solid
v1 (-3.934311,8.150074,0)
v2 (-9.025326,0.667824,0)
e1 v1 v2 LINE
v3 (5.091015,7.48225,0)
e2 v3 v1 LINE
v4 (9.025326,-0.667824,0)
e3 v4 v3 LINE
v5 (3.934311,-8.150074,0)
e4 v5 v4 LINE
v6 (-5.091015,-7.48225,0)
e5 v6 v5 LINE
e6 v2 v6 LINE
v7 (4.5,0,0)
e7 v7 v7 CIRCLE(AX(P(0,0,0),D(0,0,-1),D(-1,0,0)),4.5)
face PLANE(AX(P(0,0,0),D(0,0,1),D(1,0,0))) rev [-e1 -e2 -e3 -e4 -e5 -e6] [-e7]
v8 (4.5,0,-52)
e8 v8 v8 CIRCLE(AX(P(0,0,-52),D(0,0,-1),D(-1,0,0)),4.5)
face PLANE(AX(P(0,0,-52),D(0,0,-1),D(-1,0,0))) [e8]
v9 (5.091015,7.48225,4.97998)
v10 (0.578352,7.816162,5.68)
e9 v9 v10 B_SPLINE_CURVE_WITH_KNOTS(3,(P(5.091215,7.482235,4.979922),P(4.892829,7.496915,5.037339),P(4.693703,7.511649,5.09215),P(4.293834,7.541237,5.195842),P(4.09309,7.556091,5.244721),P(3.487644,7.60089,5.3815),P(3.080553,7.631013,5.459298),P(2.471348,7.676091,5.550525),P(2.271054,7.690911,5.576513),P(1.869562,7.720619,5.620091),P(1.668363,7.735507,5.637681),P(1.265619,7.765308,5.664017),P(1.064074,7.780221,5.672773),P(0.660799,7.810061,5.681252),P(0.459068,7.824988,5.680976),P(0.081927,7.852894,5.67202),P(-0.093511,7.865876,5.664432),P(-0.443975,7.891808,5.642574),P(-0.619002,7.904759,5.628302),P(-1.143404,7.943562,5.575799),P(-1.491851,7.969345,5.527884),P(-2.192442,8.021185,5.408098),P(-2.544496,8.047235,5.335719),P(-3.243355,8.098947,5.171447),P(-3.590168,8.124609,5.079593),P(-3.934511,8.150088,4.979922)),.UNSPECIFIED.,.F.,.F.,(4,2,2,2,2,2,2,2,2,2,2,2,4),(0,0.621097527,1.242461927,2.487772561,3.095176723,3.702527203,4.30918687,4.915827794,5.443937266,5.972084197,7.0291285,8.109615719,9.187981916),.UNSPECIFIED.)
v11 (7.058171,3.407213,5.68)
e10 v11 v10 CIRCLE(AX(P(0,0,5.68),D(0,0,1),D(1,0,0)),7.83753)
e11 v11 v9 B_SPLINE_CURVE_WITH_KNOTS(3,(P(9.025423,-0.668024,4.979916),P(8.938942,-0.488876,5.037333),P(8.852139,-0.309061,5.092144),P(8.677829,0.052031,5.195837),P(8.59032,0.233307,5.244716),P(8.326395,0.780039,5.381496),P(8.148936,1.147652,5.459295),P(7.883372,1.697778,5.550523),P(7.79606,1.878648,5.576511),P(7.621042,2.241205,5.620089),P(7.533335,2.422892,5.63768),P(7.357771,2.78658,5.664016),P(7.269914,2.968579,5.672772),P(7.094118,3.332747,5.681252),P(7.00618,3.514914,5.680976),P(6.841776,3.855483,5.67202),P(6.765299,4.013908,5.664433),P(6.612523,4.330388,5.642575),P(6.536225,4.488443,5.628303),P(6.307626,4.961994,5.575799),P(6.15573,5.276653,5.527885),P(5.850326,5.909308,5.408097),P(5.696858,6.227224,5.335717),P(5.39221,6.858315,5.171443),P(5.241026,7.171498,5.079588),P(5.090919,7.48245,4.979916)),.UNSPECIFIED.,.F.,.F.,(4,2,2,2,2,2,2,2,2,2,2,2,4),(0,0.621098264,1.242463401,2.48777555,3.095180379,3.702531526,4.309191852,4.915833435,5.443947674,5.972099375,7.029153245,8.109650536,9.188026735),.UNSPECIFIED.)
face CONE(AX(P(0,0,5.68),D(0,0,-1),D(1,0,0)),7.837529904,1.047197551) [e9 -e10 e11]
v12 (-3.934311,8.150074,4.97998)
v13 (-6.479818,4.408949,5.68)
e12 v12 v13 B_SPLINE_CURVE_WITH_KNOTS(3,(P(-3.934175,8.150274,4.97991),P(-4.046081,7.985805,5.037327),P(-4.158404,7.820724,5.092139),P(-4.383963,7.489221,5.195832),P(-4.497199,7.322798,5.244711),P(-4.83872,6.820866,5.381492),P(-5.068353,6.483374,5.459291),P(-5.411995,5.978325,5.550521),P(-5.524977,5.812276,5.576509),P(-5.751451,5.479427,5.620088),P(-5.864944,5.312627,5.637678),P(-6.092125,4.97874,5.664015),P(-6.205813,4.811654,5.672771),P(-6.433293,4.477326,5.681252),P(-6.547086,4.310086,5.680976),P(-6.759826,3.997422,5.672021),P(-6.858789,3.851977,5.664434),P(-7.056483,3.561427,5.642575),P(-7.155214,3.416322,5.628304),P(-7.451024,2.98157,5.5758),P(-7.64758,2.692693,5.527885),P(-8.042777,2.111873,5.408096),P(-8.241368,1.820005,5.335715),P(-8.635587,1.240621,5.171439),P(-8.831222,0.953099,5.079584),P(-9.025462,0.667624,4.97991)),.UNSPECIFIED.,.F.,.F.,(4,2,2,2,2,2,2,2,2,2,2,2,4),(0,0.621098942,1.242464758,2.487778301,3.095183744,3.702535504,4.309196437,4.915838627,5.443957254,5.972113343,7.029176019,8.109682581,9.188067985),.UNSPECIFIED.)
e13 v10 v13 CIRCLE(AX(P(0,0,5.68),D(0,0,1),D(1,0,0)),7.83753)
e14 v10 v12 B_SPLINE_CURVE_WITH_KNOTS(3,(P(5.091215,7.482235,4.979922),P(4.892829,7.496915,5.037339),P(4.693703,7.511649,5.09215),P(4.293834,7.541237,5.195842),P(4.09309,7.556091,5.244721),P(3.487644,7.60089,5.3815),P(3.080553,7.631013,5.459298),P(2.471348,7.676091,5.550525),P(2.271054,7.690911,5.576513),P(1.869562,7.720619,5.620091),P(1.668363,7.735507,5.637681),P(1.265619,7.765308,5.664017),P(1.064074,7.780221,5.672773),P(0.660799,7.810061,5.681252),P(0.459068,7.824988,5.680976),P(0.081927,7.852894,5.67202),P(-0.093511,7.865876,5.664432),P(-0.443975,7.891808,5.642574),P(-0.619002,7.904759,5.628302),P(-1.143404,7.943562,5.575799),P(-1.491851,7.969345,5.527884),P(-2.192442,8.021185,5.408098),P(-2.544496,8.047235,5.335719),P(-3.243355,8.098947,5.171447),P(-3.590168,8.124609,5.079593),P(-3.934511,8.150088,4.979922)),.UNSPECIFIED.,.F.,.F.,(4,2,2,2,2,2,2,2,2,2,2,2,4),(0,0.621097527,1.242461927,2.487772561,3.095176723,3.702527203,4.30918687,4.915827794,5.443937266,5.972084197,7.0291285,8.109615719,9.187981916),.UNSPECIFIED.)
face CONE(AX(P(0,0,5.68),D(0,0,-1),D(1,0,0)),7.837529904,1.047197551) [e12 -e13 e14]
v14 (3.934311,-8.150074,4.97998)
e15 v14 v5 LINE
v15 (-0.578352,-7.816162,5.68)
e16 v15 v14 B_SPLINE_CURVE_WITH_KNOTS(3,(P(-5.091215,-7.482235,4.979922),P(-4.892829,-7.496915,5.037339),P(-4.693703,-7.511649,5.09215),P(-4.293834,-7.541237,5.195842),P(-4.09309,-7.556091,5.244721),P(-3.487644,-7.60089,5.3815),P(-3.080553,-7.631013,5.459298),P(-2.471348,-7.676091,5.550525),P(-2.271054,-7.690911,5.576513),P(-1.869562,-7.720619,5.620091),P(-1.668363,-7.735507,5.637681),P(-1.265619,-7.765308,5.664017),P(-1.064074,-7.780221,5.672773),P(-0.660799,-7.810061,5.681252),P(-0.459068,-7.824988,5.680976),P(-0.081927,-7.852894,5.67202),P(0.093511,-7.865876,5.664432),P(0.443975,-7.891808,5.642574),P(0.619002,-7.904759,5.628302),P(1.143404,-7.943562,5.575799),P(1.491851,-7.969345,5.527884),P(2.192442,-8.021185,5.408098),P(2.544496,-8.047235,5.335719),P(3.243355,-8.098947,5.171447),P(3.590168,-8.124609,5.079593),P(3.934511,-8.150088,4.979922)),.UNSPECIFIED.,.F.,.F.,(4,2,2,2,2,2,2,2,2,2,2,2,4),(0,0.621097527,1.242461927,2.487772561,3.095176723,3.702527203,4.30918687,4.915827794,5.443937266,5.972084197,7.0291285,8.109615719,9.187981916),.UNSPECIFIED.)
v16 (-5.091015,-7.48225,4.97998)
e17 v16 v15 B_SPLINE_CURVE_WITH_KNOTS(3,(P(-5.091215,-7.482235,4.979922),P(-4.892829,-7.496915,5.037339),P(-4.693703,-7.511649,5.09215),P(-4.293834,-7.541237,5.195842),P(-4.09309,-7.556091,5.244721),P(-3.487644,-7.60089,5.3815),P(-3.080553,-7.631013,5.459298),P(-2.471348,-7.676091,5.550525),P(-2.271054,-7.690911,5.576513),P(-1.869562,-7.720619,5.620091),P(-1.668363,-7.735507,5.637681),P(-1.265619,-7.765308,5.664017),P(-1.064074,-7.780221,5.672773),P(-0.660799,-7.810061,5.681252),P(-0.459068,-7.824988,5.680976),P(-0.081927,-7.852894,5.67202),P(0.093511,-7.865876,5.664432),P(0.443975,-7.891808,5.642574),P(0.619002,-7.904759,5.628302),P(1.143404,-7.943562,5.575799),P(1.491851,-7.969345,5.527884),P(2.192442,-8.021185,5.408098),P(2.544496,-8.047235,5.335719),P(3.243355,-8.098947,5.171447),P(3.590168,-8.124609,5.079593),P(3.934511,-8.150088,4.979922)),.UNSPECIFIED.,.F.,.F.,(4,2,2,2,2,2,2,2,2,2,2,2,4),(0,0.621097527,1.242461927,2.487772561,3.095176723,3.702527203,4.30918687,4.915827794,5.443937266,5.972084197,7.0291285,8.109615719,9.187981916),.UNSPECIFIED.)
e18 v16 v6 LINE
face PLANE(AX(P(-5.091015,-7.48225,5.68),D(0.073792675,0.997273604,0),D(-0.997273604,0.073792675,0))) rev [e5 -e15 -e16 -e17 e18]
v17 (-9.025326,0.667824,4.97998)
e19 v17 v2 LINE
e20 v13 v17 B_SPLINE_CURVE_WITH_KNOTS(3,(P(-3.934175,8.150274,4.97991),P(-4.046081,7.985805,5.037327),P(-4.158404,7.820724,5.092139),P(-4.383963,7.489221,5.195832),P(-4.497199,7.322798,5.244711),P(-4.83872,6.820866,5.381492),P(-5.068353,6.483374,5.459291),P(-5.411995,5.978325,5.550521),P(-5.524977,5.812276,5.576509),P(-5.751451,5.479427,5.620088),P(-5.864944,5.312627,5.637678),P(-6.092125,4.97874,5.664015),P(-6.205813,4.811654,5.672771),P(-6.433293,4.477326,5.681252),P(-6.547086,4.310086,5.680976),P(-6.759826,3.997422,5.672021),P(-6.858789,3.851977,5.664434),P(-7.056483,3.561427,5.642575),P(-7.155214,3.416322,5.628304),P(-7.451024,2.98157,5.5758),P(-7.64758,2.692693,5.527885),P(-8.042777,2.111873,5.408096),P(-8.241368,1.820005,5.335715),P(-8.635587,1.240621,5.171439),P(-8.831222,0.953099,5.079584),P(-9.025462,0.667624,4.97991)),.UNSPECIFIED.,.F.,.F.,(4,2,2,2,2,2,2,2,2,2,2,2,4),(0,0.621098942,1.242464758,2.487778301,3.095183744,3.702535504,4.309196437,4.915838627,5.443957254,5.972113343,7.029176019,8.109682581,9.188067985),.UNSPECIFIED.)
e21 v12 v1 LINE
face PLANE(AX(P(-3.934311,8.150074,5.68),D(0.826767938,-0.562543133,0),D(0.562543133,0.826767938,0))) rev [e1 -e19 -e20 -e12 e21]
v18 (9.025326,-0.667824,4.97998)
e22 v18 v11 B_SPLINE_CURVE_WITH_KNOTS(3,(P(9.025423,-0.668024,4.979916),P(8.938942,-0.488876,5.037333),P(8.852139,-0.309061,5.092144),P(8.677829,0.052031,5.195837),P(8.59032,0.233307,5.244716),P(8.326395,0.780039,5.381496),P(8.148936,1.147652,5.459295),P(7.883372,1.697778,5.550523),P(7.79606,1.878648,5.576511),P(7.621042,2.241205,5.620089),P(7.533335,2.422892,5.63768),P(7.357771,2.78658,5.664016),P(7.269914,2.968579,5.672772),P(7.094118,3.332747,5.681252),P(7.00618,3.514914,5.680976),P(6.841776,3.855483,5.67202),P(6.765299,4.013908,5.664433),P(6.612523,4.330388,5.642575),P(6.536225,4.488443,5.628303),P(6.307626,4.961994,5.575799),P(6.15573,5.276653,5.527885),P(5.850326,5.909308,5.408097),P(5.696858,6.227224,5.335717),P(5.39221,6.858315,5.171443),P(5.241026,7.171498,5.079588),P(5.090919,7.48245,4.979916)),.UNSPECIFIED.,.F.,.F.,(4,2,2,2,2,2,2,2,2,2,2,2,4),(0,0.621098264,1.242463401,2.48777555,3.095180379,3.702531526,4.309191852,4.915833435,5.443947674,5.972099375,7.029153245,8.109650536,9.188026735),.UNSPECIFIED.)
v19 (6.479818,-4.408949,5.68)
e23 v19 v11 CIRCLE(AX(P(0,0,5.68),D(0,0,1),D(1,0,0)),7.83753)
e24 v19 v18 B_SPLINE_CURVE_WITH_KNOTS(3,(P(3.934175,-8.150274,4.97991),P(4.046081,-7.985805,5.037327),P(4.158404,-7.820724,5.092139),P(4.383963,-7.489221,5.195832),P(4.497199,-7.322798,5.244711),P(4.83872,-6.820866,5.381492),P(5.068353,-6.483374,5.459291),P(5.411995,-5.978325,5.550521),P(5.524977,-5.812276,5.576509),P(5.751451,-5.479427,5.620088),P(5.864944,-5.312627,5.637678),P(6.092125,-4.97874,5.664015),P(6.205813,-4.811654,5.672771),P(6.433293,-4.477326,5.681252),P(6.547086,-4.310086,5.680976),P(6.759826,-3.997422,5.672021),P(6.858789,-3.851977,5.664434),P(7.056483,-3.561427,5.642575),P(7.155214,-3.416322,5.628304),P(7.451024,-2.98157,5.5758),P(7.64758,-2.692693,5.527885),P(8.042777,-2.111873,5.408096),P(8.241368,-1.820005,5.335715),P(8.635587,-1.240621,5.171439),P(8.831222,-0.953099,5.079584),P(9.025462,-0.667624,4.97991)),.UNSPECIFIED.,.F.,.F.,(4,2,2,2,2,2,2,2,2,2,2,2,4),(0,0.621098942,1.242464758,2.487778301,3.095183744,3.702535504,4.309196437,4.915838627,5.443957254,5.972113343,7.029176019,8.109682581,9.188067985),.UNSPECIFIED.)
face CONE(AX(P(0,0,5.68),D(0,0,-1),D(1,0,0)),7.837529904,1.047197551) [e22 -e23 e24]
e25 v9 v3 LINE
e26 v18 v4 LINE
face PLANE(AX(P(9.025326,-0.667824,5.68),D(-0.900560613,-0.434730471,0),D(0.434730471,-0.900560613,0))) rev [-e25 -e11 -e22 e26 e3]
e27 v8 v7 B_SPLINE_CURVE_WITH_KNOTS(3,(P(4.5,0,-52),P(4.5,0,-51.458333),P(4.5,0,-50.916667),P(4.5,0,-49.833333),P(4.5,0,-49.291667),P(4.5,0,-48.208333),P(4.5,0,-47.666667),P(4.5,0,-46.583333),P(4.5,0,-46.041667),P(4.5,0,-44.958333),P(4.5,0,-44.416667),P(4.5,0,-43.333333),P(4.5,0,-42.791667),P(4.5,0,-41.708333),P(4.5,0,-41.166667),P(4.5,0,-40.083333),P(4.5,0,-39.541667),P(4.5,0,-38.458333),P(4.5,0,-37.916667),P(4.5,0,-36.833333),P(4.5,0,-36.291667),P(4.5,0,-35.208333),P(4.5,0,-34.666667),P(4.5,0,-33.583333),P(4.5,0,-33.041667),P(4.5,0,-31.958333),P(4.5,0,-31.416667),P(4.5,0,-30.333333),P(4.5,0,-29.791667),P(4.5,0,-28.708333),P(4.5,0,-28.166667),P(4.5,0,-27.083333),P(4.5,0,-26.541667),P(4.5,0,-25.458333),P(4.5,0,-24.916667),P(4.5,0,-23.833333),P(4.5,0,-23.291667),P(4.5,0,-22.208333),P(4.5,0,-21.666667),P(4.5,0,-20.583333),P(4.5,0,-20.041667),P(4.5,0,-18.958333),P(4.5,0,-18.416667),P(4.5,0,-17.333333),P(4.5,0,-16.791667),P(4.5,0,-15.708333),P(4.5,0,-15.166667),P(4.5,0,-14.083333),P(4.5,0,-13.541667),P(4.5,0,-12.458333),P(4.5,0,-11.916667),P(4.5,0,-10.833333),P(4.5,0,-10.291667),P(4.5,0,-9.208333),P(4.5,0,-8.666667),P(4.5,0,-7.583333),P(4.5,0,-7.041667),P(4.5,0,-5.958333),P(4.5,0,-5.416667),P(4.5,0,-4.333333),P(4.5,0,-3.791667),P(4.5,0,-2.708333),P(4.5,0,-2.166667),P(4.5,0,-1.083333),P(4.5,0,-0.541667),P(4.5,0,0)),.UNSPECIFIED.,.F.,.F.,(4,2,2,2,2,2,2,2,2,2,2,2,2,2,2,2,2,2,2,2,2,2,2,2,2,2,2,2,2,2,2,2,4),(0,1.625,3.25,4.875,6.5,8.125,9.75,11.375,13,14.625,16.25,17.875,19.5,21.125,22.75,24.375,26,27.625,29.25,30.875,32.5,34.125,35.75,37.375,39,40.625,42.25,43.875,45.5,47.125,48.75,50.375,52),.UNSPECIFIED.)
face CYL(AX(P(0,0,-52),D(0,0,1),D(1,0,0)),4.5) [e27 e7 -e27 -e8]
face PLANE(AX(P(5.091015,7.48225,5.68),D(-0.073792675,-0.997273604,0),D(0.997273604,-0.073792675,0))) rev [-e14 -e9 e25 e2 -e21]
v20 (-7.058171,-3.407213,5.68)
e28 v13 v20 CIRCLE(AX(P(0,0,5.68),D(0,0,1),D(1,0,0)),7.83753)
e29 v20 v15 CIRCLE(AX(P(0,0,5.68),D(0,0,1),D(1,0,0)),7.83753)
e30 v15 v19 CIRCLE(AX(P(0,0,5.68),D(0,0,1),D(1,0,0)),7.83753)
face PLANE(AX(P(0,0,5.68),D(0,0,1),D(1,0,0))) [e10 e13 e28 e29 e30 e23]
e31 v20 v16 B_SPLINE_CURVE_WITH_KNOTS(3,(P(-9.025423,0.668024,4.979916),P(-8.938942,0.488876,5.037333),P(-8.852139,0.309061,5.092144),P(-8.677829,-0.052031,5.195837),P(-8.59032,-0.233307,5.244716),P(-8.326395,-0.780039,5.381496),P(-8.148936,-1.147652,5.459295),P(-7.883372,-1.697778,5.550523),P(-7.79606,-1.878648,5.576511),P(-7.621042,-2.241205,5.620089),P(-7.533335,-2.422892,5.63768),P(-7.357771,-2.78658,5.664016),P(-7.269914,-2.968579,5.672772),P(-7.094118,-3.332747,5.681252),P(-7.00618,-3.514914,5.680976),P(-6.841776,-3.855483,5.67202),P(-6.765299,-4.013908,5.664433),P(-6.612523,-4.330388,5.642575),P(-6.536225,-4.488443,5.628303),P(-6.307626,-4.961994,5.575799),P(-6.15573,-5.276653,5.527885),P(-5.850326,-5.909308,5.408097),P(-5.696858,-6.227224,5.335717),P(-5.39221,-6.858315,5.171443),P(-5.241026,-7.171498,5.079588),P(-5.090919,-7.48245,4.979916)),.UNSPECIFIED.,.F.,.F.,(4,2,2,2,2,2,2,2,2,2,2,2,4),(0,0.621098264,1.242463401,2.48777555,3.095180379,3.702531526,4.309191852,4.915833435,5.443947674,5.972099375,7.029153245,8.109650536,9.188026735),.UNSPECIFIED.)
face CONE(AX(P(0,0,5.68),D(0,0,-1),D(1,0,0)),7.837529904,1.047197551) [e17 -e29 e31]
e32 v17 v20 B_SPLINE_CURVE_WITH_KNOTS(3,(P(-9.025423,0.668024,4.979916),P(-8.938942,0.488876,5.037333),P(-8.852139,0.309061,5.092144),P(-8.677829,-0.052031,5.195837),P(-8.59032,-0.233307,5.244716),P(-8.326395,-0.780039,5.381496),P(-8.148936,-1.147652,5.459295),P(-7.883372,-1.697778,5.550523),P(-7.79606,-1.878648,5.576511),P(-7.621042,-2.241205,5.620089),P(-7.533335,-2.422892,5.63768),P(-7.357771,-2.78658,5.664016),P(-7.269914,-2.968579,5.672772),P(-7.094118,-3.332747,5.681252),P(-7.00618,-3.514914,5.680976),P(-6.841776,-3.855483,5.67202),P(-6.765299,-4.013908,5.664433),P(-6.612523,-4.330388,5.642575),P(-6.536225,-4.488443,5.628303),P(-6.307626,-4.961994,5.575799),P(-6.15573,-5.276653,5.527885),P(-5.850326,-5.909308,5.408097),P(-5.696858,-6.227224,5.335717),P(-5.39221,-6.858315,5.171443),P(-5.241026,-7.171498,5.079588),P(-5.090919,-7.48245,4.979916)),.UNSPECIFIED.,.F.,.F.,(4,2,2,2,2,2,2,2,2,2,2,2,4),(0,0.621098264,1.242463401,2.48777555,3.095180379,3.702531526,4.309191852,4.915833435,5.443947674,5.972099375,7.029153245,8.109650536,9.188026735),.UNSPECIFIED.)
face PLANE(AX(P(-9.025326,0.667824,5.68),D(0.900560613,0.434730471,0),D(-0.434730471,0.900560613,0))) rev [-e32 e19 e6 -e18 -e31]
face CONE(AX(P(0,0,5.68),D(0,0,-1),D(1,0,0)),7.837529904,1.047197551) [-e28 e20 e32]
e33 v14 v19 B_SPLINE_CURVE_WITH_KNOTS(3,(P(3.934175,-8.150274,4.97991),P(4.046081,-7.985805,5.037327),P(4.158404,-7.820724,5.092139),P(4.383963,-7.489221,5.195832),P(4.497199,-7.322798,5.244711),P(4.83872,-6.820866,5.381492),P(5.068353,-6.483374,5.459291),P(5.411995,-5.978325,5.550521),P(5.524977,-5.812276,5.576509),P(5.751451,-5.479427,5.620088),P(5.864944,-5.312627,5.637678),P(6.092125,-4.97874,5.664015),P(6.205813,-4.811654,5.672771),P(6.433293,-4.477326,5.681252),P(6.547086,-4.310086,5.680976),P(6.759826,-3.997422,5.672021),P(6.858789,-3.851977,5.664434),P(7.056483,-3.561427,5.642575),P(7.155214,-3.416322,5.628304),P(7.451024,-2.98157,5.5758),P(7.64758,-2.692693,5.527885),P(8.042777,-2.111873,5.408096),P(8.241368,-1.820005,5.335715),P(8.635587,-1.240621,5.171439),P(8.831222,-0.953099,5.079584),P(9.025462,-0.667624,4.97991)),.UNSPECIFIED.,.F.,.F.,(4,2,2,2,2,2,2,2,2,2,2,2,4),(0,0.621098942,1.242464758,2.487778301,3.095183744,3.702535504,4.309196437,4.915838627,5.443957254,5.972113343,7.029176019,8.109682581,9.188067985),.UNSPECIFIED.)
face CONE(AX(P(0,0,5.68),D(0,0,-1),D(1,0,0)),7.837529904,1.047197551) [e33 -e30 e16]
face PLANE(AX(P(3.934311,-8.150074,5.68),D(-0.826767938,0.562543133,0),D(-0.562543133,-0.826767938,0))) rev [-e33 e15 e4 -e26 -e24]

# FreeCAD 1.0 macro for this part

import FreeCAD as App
import Part
import Sketcher

V = App.Vector


def faces_at(feature, points):
    """Names of the faces that lie closest to the given points."""
    faces = feature.Shape.Faces
    near = lambda p: min(range(len(faces)), key=lambda i: faces[i].distToShape(Part.Vertex(*p))[0])
    return sorted({f"Face{near(p) + 1}" for p in points})


def add_polygon(sketch, points):
    """Adds a closed chain of lines whose ends are joined by coincident constraints."""
    first, n = sketch.GeometryCount, len(points)
    for a, b in zip(points, points[1:] + points[:1]):
        sketch.addGeometry(Part.LineSegment(App.Vector(*a, 0), App.Vector(*b, 0)), False)
    for i in range(n):
        sketch.addConstraint(Sketcher.Constraint("Coincident", first + i, 2, first + (i + 1) % n, 1))

doc = App.newDocument("Part")
body = doc.addObject("PartDesign::Body", "Body")

sketch1 = doc.addObject("Sketcher::SketchObject", "Sketch")
body.addObject(sketch1)
sketch1.AttachmentSupport = (doc.XY_Plane, [""])
sketch1.MapMode = "FlatFace"
add_polygon(sketch1, [(5, 7), (-4, 8), (-9, 1), (-5, -7), (4, -8), (9, -1)])
sketch1.addConstraint(Sketcher.Constraint("Symmetric", 0, 2, 3, 2, -1, 1))
sketch1.addConstraint(Sketcher.Constraint("Symmetric", 1, 2, 4, 2, -1, 1))
sketch1.addConstraint(Sketcher.Constraint("Symmetric", 2, 2, 5, 2, -1, 1))
sketch1.addConstraint(Sketcher.Constraint("Equal", 0, 1))
sketch1.addConstraint(Sketcher.Constraint("Equal", 1, 2))
sketch1.addConstraint(Sketcher.Constraint("Distance", 0, 9.05))
sketch1.addConstraint(Sketcher.Constraint("DistanceY", 2, 2, 5, 2, 14.9645))
sketch1.addConstraint(Sketcher.Constraint("DistanceX", 0, 2, -1, 1, 3.934311))
sketch1.addConstraint(Sketcher.Constraint("DistanceY", 1, 2, 0, 2, 7.48225))
pad1 = doc.addObject("PartDesign::Pad", "Pad")
body.addObject(pad1)
pad1.Profile = sketch1
pad1.Length = 5.68
body2 = doc.addObject("PartDesign::Body", "Body001")

sketch2 = doc.addObject("Sketcher::SketchObject", "Sketch001")
body2.addObject(sketch2)
sketch2.AttachmentSupport = (doc.getObject("XY_Plane001"), [""])
sketch2.MapMode = "FlatFace"
sketch2.AttachmentOffset = App.Placement(V(0, 0, 5.68), App.Rotation())
add_polygon(sketch2, [(-22, 21), (-22, -21), (22, -21), (22, 21)])
sketch2.addGeometry(Part.Circle(V(0, 0, 0), V(0, 0, 1), 8), False)
sketch2.addConstraint(Sketcher.Constraint("Vertical", 0))
sketch2.addConstraint(Sketcher.Constraint("Horizontal", 1))
sketch2.addConstraint(Sketcher.Constraint("Vertical", 2))
sketch2.addConstraint(Sketcher.Constraint("Horizontal", 3))
sketch2.addConstraint(Sketcher.Constraint("Coincident", 4, 3, -1, 1))
sketch2.addConstraint(Sketcher.Constraint("Symmetric", 0, 2, 2, 2, -1, 1))
sketch2.addConstraint(Sketcher.Constraint("Diameter", 4, 15.67506))
sketch2.addConstraint(Sketcher.Constraint("DistanceX", 1, 1, 1, 2, 44.722))
sketch2.addConstraint(Sketcher.Constraint("DistanceY", 0, 2, 0, 1, 42.972))
pad2 = doc.addObject("PartDesign::Pad", "Pad001")
body2.addObject(pad2)
pad2.Profile = sketch2
pad2.Length = 5.68
pad2.Reversed = True
doc.recompute()

datumplane = doc.addObject("PartDesign::Plane", "DatumPlane")
body2.addObject(datumplane)
datumplane.AttachmentSupport = (doc.getObject("XY_Plane001"), [""])
datumplane.MapMode = "FlatFace"
datumplane.AttachmentOffset = App.Placement(V(0, 0, 5.68), App.Rotation())
draft = doc.addObject("PartDesign::Draft", "Draft")
body2.addObject(draft)
draft.Base = (pad2, faces_at(pad2, [
    (0, -21.486, 2.84),
    (22.361, 0, 2.84),
    (0, 21.486, 2.84),
    (-22.361, 0, 2.84),
    (-7.838, 0, 2.84),
]))
draft.NeutralPlane = (datumplane, [""])
draft.Angle = 60
draft.Reversed = True
doc.recompute()

boolean = doc.addObject("PartDesign::Boolean", "Boolean")
body.addObject(boolean)
boolean.Type = "Cut"
boolean.addObjects([body2])

sketch3 = doc.addObject("Sketcher::SketchObject", "Sketch002")
body.addObject(sketch3)
sketch3.AttachmentSupport = (doc.XY_Plane, [""])
sketch3.MapMode = "FlatFace"
sketch3.addGeometry(Part.Circle(V(0, 0, 0), V(0, 0, 1), 4.5), False)
sketch3.addConstraint(Sketcher.Constraint("Coincident", 0, 3, -1, 1))
sketch3.addConstraint(Sketcher.Constraint("Diameter", 0, 9.0))
pad3 = doc.addObject("PartDesign::Pad", "Pad002")
body.addObject(pad3)
pad3.Profile = sketch3
pad3.Length = 52
pad3.Reversed = True

doc.recompute()
